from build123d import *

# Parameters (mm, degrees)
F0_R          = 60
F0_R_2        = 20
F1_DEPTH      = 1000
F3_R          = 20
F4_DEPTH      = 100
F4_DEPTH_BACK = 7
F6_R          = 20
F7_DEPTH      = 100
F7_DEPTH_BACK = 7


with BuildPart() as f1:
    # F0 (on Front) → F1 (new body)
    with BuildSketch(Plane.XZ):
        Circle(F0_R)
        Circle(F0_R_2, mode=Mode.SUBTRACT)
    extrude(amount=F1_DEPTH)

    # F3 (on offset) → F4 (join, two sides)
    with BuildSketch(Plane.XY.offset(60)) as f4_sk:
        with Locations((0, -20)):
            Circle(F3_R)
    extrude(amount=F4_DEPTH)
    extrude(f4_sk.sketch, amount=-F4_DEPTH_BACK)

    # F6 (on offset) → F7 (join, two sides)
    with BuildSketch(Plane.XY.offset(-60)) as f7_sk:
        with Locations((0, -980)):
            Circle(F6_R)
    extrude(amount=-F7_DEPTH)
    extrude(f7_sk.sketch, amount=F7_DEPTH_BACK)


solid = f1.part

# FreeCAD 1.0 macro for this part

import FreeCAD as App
import Part
import Sketcher
Q = App.Units.Quantity

doc = App.newDocument("Part")
body = doc.addObject("PartDesign::Body", "Body")

# Sketch on XZ plane
sketch1 = body.newObject("Sketcher::SketchObject", "Sketch")
sketch1.AttachmentSupport = (doc.getObject("XZ_Plane"), [""])
sketch1.MapMode = "FlatFace"
sketch1.addGeometry(Part.Circle(App.Vector(0, 0, 0), App.Vector(0, 0, 1), 60), False)
sketch1.addGeometry(Part.Circle(App.Vector(0, 0, 0), App.Vector(0, 0, 1), 20), False)
sketch1.addConstraint(Sketcher.Constraint("Coincident", 0, 3, -1, 1))
sketch1.addConstraint(Sketcher.Constraint("Coincident", 1, 3, -1, 1))
sketch1.addConstraint(Sketcher.Constraint("Diameter", 0, Q("120 mm")))
sketch1.addConstraint(Sketcher.Constraint("Diameter", 1, Q("40 mm")))
pad1 = body.newObject("PartDesign::Pad", "Pad")
pad1.Profile = sketch1
pad1.Length = 1000

# Sketch on XY plane
sketch2 = body.newObject("Sketcher::SketchObject", "Sketch001")
sketch2.AttachmentSupport = (doc.getObject("XY_Plane"), [""])
sketch2.MapMode = "FlatFace"
sketch2.AttachmentOffset = App.Placement(App.Vector(0, 0, 60), App.Rotation())
sketch2.addGeometry(Part.Circle(App.Vector(0, -20, 0), App.Vector(0, 0, 1), 20), False)
sketch2.addConstraint(Sketcher.Constraint("PointOnObject", 0, 3, -2))
sketch2.addConstraint(Sketcher.Constraint("Diameter", 0, Q("40 mm")))
sketch2.addConstraint(Sketcher.Constraint("DistanceY", 0, 3, -1, 1, Q("20 mm")))
pad2 = body.newObject("PartDesign::Pad", "Pad001")
pad2.Profile = sketch2
pad2.Type = "TwoLengths"
pad2.Length = 100
pad2.Length2 = 7

# Sketch on XY plane
sketch3 = body.newObject("Sketcher::SketchObject", "Sketch002")
sketch3.AttachmentSupport = (doc.getObject("XY_Plane"), [""])
sketch3.MapMode = "FlatFace"
sketch3.AttachmentOffset = App.Placement(App.Vector(0, 0, -60), App.Rotation())
sketch3.addGeometry(Part.Circle(App.Vector(0, -980, 0), App.Vector(0, 0, 1), 20), False)
sketch3.addConstraint(Sketcher.Constraint("PointOnObject", 0, 3, -2))
sketch3.addConstraint(Sketcher.Constraint("Diameter", 0, Q("40 mm")))
sketch3.addConstraint(Sketcher.Constraint("DistanceY", 0, 3, -1, 1, Q("980 mm")))
pad3 = body.newObject("PartDesign::Pad", "Pad002")
pad3.Profile = sketch3
pad3.Type = "TwoLengths"
pad3.Length = 100
pad3.Length2 = 7
pad3.Reversed = True

doc.recompute()
